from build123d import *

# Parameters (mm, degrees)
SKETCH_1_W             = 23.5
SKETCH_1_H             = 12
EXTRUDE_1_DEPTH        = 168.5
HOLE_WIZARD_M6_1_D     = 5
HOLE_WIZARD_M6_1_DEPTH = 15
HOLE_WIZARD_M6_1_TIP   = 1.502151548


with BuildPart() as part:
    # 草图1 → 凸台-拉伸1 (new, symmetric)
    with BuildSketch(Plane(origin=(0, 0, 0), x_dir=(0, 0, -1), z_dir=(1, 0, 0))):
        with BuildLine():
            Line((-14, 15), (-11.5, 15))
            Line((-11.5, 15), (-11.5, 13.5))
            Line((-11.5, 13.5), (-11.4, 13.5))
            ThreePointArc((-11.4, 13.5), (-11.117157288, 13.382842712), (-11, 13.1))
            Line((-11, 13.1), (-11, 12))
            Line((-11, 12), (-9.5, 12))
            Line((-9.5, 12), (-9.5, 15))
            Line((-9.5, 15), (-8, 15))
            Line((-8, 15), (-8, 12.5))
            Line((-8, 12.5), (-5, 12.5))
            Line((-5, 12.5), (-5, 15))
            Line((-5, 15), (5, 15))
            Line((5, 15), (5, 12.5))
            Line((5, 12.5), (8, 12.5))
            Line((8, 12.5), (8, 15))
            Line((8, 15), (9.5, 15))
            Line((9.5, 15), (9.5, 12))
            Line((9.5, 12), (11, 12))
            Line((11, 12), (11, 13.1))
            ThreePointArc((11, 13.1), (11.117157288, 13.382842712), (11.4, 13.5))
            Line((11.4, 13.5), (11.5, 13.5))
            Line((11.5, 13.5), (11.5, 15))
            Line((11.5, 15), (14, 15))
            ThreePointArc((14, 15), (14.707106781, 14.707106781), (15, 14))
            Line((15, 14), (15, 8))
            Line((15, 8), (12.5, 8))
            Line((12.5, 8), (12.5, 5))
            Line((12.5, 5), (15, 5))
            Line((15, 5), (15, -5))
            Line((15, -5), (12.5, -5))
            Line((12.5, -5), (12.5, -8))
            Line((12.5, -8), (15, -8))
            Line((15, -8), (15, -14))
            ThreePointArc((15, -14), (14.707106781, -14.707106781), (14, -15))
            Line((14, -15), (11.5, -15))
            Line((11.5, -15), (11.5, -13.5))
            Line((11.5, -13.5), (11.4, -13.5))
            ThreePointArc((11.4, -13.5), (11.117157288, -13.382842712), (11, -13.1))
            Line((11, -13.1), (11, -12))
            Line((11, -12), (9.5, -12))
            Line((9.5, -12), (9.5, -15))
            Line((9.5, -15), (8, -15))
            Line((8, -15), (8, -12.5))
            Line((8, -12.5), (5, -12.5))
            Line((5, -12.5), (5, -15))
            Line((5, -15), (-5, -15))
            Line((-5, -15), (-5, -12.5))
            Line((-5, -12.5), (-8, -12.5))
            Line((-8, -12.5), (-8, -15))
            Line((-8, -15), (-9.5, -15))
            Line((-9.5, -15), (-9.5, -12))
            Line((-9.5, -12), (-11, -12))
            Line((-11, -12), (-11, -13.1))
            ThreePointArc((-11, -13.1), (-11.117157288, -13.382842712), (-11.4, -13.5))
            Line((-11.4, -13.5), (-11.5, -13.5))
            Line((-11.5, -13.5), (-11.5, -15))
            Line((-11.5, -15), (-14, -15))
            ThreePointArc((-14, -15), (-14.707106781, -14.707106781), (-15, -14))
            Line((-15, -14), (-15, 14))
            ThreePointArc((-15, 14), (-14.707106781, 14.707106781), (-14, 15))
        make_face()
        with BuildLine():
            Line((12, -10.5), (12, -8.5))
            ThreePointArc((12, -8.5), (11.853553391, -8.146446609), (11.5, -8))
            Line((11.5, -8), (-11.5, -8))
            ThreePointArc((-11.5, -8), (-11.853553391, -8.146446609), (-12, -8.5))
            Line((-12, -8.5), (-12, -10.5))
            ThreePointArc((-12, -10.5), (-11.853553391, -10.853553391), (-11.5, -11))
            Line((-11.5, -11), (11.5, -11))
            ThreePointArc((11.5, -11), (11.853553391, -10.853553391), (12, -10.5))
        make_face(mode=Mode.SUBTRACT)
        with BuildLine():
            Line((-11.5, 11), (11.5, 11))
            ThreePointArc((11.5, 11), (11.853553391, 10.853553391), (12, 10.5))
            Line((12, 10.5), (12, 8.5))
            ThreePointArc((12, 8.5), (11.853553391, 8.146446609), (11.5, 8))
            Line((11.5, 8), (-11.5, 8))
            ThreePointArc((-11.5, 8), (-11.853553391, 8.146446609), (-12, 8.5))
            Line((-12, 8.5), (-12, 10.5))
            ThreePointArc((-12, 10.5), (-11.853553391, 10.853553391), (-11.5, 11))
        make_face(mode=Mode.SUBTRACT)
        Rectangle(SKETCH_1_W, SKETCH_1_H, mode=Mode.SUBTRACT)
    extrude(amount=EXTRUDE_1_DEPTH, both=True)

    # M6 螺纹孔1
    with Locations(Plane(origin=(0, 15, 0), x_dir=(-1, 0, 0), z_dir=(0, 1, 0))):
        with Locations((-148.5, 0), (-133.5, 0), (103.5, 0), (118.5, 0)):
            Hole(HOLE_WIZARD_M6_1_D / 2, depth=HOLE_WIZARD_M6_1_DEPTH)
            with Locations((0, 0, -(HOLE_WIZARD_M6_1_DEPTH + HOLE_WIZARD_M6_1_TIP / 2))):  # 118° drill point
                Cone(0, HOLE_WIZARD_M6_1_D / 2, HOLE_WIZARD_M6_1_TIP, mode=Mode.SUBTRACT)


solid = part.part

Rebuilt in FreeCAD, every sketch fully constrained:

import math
import FreeCAD as App
import Part
import Sketcher
from FreeCAD import Vector
Q = App.Units.Quantity

doc = App.newDocument("Part")
body = doc.addObject("PartDesign::Body", "Body")

sketch1 = body.newObject("Sketcher::SketchObject", "Sketch")
sketch1.AttachmentSupport = (doc.getObject("YZ_Plane"), [""])
sketch1.MapMode = "FlatFace"
sketch1.addGeometry([
    Part.LineSegment(Vector(15, 11.5, 0), Vector(15, 14, 0)),
    Part.ArcOfCircle(Part.Circle(Vector(14, 14, 0), Vector(0, 0, 1), 1), math.radians(0), math.radians(90)),
    Part.LineSegment(Vector(14, 15, 0), Vector(-14, 15, 0)),
    Part.ArcOfCircle(Part.Circle(Vector(-14, 14, 0), Vector(0, 0, 1), 1), math.radians(90), math.radians(180)),
    Part.LineSegment(Vector(-15, 14, 0), Vector(-15, 11.5, 0)),
    Part.LineSegment(Vector(-15, 11.5, 0), Vector(-13.5, 11.5, 0)),
    Part.LineSegment(Vector(-13.5, 11.5, 0), Vector(-13.5, 11.4, 0)),
    Part.ArcOfCircle(Part.Circle(Vector(-13.1, 11.4, 0), Vector(0, 0, 1), 0.4), math.radians(-180), math.radians(-90)),
    Part.LineSegment(Vector(-13.1, 11, 0), Vector(-12, 11, 0)),
    Part.LineSegment(Vector(-12, 11, 0), Vector(-12, 9.5, 0)),
    Part.LineSegment(Vector(-12, 9.5, 0), Vector(-15, 9.5, 0)),
    Part.LineSegment(Vector(-15, 9.5, 0), Vector(-15, 8, 0)),
    Part.LineSegment(Vector(-15, 8, 0), Vector(-12.5, 8, 0)),
    Part.LineSegment(Vector(-12.5, 8, 0), Vector(-12.5, 5, 0)),
    Part.LineSegment(Vector(-12.5, 5, 0), Vector(-15, 5, 0)),
    Part.LineSegment(Vector(-15, 5, 0), Vector(-15, -5, 0)),
    Part.LineSegment(Vector(-15, -5, 0), Vector(-12.5, -5, 0)),
    Part.LineSegment(Vector(-12.5, -5, 0), Vector(-12.5, -8, 0)),
    Part.LineSegment(Vector(-12.5, -8, 0), Vector(-15, -8, 0)),
    Part.LineSegment(Vector(-15, -8, 0), Vector(-15, -9.5, 0)),
    Part.LineSegment(Vector(-15, -9.5, 0), Vector(-12, -9.5, 0)),
    Part.LineSegment(Vector(-12, -9.5, 0), Vector(-12, -11, 0)),
    Part.LineSegment(Vector(-12, -11, 0), Vector(-13.1, -11, 0)),
    Part.ArcOfCircle(Part.Circle(Vector(-13.1, -11.4, 0), Vector(0, 0, 1), 0.4), math.radians(90), math.radians(180)),
    Part.LineSegment(Vector(-13.5, -11.4, 0), Vector(-13.5, -11.5, 0)),
    Part.LineSegment(Vector(-13.5, -11.5, 0), Vector(-15, -11.5, 0)),
    Part.LineSegment(Vector(-15, -11.5, 0), Vector(-15, -14, 0)),
    Part.ArcOfCircle(Part.Circle(Vector(-14, -14, 0), Vector(0, 0, 1), 1), math.radians(-180), math.radians(-90)),
    Part.LineSegment(Vector(-14, -15, 0), Vector(-8, -15, 0)),
    Part.LineSegment(Vector(-8, -15, 0), Vector(-8, -12.5, 0)),
    Part.LineSegment(Vector(-8, -12.5, 0), Vector(-5, -12.5, 0)),
    Part.LineSegment(Vector(-5, -12.5, 0), Vector(-5, -15, 0)),
    Part.LineSegment(Vector(-5, -15, 0), Vector(5, -15, 0)),
    Part.LineSegment(Vector(5, -15, 0), Vector(5, -12.5, 0)),
    Part.LineSegment(Vector(5, -12.5, 0), Vector(8, -12.5, 0)),
    Part.LineSegment(Vector(8, -12.5, 0), Vector(8, -15, 0)),
    Part.LineSegment(Vector(8, -15, 0), Vector(14, -15, 0)),
    Part.ArcOfCircle(Part.Circle(Vector(14, -14, 0), Vector(0, 0, 1), 1), math.radians(-90), math.radians(0)),
    Part.LineSegment(Vector(15, -14, 0), Vector(15, -11.5, 0)),
    Part.LineSegment(Vector(15, -11.5, 0), Vector(13.5, -11.5, 0)),
    Part.LineSegment(Vector(13.5, -11.5, 0), Vector(13.5, -11.4, 0)),
    Part.ArcOfCircle(Part.Circle(Vector(13.1, -11.4, 0), Vector(0, 0, 1), 0.4), math.radians(0), math.radians(90)),
    Part.LineSegment(Vector(13.1, -11, 0), Vector(12, -11, 0)),
    Part.LineSegment(Vector(12, -11, 0), Vector(12, -9.5, 0)),
    Part.LineSegment(Vector(12, -9.5, 0), Vector(15, -9.5, 0)),
    Part.LineSegment(Vector(15, -9.5, 0), Vector(15, -8, 0)),
    Part.LineSegment(Vector(15, -8, 0), Vector(12.5, -8, 0)),
    Part.LineSegment(Vector(12.5, -8, 0), Vector(12.5, -5, 0)),
    Part.LineSegment(Vector(12.5, -5, 0), Vector(15, -5, 0)),
    Part.LineSegment(Vector(15, -5, 0), Vector(15, 5, 0)),
    Part.LineSegment(Vector(15, 5, 0), Vector(12.5, 5, 0)),
    Part.LineSegment(Vector(12.5, 5, 0), Vector(12.5, 8, 0)),
    Part.LineSegment(Vector(12.5, 8, 0), Vector(15, 8, 0)),
    Part.LineSegment(Vector(15, 8, 0), Vector(15, 9.5, 0)),
    Part.LineSegment(Vector(15, 9.5, 0), Vector(12, 9.5, 0)),
    Part.LineSegment(Vector(12, 9.5, 0), Vector(12, 11, 0)),
    Part.LineSegment(Vector(12, 11, 0), Vector(13.1, 11, 0)),
    Part.ArcOfCircle(Part.Circle(Vector(13.1, 11.4, 0), Vector(0, 0, 1), 0.4), math.radians(-90), math.radians(0)),
    Part.LineSegment(Vector(13.5, 11.4, 0), Vector(13.5, 11.5, 0)),
    Part.LineSegment(Vector(13.5, 11.5, 0), Vector(15, 11.5, 0)),
    Part.ArcOfCircle(Part.Circle(Vector(-10.5, -11.5, 0), Vector(0, 0, 1), 0.5), math.radians(180), math.radians(270)),
    Part.LineSegment(Vector(-11, -11.5, 0), Vector(-11, 11.5, 0)),
    Part.ArcOfCircle(Part.Circle(Vector(-10.5, 11.5, 0), Vector(0, 0, 1), 0.5), math.radians(90), math.radians(180)),
    Part.LineSegment(Vector(-10.5, 12, 0), Vector(-8.5, 12, 0)),
    Part.ArcOfCircle(Part.Circle(Vector(-8.5, 11.5, 0), Vector(0, 0, 1), 0.5), math.radians(0), math.radians(90)),
    Part.LineSegment(Vector(-8, 11.5, 0), Vector(-8, -11.5, 0)),
    Part.ArcOfCircle(Part.Circle(Vector(-8.5, -11.5, 0), Vector(0, 0, 1), 0.5), math.radians(-90), math.radians(0)),
    Part.LineSegment(Vector(-8.5, -12, 0), Vector(-10.5, -12, 0)),
    Part.LineSegment(Vector(-6, 11.75, 0), Vector(6, 11.75, 0)),
    Part.LineSegment(Vector(6, 11.75, 0), Vector(6, -11.75, 0)),
    Part.LineSegment(Vector(6, -11.75, 0), Vector(-6, -11.75, 0)),
    Part.LineSegment(Vector(-6, -11.75, 0), Vector(-6, 11.75, 0)),
    Part.LineSegment(Vector(11, 11.5, 0), Vector(11, -11.5, 0)),
    Part.ArcOfCircle(Part.Circle(Vector(10.5, -11.5, 0), Vector(0, 0, 1), 0.5), math.radians(-90), math.radians(0)),
    Part.LineSegment(Vector(10.5, -12, 0), Vector(8.5, -12, 0)),
    Part.ArcOfCircle(Part.Circle(Vector(8.5, -11.5, 0), Vector(0, 0, 1), 0.5), math.radians(180), math.radians(270)),
    Part.LineSegment(Vector(8, -11.5, 0), Vector(8, 11.5, 0)),
    Part.ArcOfCircle(Part.Circle(Vector(8.5, 11.5, 0), Vector(0, 0, 1), 0.5), math.radians(90), math.radians(180)),
    Part.LineSegment(Vector(8.5, 12, 0), Vector(10.5, 12, 0)),
    Part.ArcOfCircle(Part.Circle(Vector(10.5, 11.5, 0), Vector(0, 0, 1), 0.5), math.radians(0), math.radians(90)),
], False)
sketch1.addConstraint([
    Sketcher.Constraint("Tangent", 0, 2, 1, 1),
    Sketcher.Constraint("Tangent", 1, 2, 2, 1),
    Sketcher.Constraint("Tangent", 2, 2, 3, 1),
    Sketcher.Constraint("Tangent", 3, 2, 4, 1),
    Sketcher.Constraint("Coincident", 4, 2, 5, 1),
    Sketcher.Constraint("Coincident", 5, 2, 6, 1),
    Sketcher.Constraint("Tangent", 6, 2, 7, 1),
    Sketcher.Constraint("Tangent", 7, 2, 8, 1),
    Sketcher.Constraint("Coincident", 8, 2, 9, 1),
    Sketcher.Constraint("Coincident", 9, 2, 10, 1),
    Sketcher.Constraint("Coincident", 10, 2, 11, 1),
    Sketcher.Constraint("Coincident", 11, 2, 12, 1),
    Sketcher.Constraint("Coincident", 12, 2, 13, 1),
    Sketcher.Constraint("Coincident", 13, 2, 14, 1),
    Sketcher.Constraint("Coincident", 14, 2, 15, 1),
    Sketcher.Constraint("Coincident", 15, 2, 16, 1),
    Sketcher.Constraint("Coincident", 16, 2, 17, 1),
    Sketcher.Constraint("Coincident", 17, 2, 18, 1),
    Sketcher.Constraint("Coincident", 18, 2, 19, 1),
    Sketcher.Constraint("Coincident", 19, 2, 20, 1),
    Sketcher.Constraint("Coincident", 20, 2, 21, 1),
    Sketcher.Constraint("Coincident", 21, 2, 22, 1),
    Sketcher.Constraint("Tangent", 22, 2, 23, 1),
    Sketcher.Constraint("Tangent", 23, 2, 24, 1),
    Sketcher.Constraint("Coincident", 24, 2, 25, 1),
    Sketcher.Constraint("Coincident", 25, 2, 26, 1),
    Sketcher.Constraint("Tangent", 26, 2, 27, 1),
    Sketcher.Constraint("Tangent", 27, 2, 28, 1),
    Sketcher.Constraint("Coincident", 28, 2, 29, 1),
    Sketcher.Constraint("Coincident", 29, 2, 30, 1),
    Sketcher.Constraint("Coincident", 30, 2, 31, 1),
    Sketcher.Constraint("Coincident", 31, 2, 32, 1),
    Sketcher.Constraint("Coincident", 32, 2, 33, 1),
    Sketcher.Constraint("Coincident", 33, 2, 34, 1),
    Sketcher.Constraint("Coincident", 34, 2, 35, 1),
    Sketcher.Constraint("Coincident", 35, 2, 36, 1),
    Sketcher.Constraint("Tangent", 36, 2, 37, 1),
    Sketcher.Constraint("Tangent", 37, 2, 38, 1),
    Sketcher.Constraint("Coincident", 38, 2, 39, 1),
    Sketcher.Constraint("Coincident", 39, 2, 40, 1),
    Sketcher.Constraint("Tangent", 40, 2, 41, 1),
    Sketcher.Constraint("Tangent", 41, 2, 42, 1),
    Sketcher.Constraint("Coincident", 42, 2, 43, 1),
    Sketcher.Constraint("Coincident", 43, 2, 44, 1),
    Sketcher.Constraint("Coincident", 44, 2, 45, 1),
    Sketcher.Constraint("Coincident", 45, 2, 46, 1),
    Sketcher.Constraint("Coincident", 46, 2, 47, 1),
    Sketcher.Constraint("Coincident", 47, 2, 48, 1),
    Sketcher.Constraint("Coincident", 48, 2, 49, 1),
    Sketcher.Constraint("Coincident", 49, 2, 50, 1),
    Sketcher.Constraint("Coincident", 50, 2, 51, 1),
    Sketcher.Constraint("Coincident", 51, 2, 52, 1),
    Sketcher.Constraint("Coincident", 52, 2, 53, 1),
    Sketcher.Constraint("Coincident", 53, 2, 54, 1),
    Sketcher.Constraint("Coincident", 54, 2, 55, 1),
    Sketcher.Constraint("Coincident", 55, 2, 56, 1),
    Sketcher.Constraint("Tangent", 56, 2, 57, 1),
    Sketcher.Constraint("Tangent", 57, 2, 58, 1),
    Sketcher.Constraint("Coincident", 58, 2, 59, 1),
    Sketcher.Constraint("Coincident", 59, 2, 0, 1),
    Sketcher.Constraint("Tangent", 60, 1, 61, 1),
    Sketcher.Constraint("Tangent", 61, 2, 62, 2),
    Sketcher.Constraint("Tangent", 62, 1, 63, 1),
    Sketcher.Constraint("Tangent", 63, 2, 64, 2),
    Sketcher.Constraint("Tangent", 64, 1, 65, 1),
    Sketcher.Constraint("Tangent", 65, 2, 66, 2),
    Sketcher.Constraint("Tangent", 66, 1, 67, 1),
    Sketcher.Constraint("Tangent", 67, 2, 60, 2),
    Sketcher.Constraint("Coincident", 68, 2, 69, 1),
    Sketcher.Constraint("Coincident", 69, 2, 70, 1),
    Sketcher.Constraint("Coincident", 70, 2, 71, 1),
    Sketcher.Constraint("Coincident", 71, 2, 68, 1),
    Sketcher.Constraint("Tangent", 72, 2, 73, 2),
    Sketcher.Constraint("Tangent", 73, 1, 74, 1),
    Sketcher.Constraint("Tangent", 74, 2, 75, 2),
    Sketcher.Constraint("Tangent", 75, 1, 76, 1),
    Sketcher.Constraint("Tangent", 76, 2, 77, 2),
    Sketcher.Constraint("Tangent", 77, 1, 78, 1),
    Sketcher.Constraint("Tangent", 78, 2, 79, 2),
    Sketcher.Constraint("Tangent", 79, 1, 72, 1),
    Sketcher.Constraint("Vertical", 0),
    Sketcher.Constraint("Horizontal", 2),
    Sketcher.Constraint("Vertical", 4),
    Sketcher.Constraint("Horizontal", 5),
    Sketcher.Constraint("Vertical", 6),
    Sketcher.Constraint("Horizontal", 8),
    Sketcher.Constraint("Vertical", 9),
    Sketcher.Constraint("Horizontal", 10),
    Sketcher.Constraint("Vertical", 11),
    Sketcher.Constraint("Horizontal", 12),
    Sketcher.Constraint("Vertical", 13),
    Sketcher.Constraint("Horizontal", 14),
    Sketcher.Constraint("Vertical", 15),
    Sketcher.Constraint("Horizontal", 16),
    Sketcher.Constraint("Vertical", 17),
    Sketcher.Constraint("Horizontal", 18),
    Sketcher.Constraint("Vertical", 19),
    Sketcher.Constraint("Horizontal", 20),
    Sketcher.Constraint("Vertical", 21),
    Sketcher.Constraint("Horizontal", 22),
    Sketcher.Constraint("Vertical", 24),
    Sketcher.Constraint("Horizontal", 25),
    Sketcher.Constraint("Vertical", 26),
    Sketcher.Constraint("Horizontal", 28),
    Sketcher.Constraint("Vertical", 29),
    Sketcher.Constraint("Horizontal", 30),
    Sketcher.Constraint("Vertical", 31),
    Sketcher.Constraint("Horizontal", 32),
    Sketcher.Constraint("Vertical", 33),
    Sketcher.Constraint("Horizontal", 34),
    Sketcher.Constraint("Vertical", 35),
    Sketcher.Constraint("Horizontal", 36),
    Sketcher.Constraint("Vertical", 38),
    Sketcher.Constraint("Horizontal", 39),
    Sketcher.Constraint("Vertical", 40),
    Sketcher.Constraint("Horizontal", 42),
    Sketcher.Constraint("Vertical", 43),
    Sketcher.Constraint("Horizontal", 44),
    Sketcher.Constraint("Vertical", 45),
    Sketcher.Constraint("Horizontal", 46),
    Sketcher.Constraint("Vertical", 47),
    Sketcher.Constraint("Horizontal", 48),
    Sketcher.Constraint("Vertical", 49),
    Sketcher.Constraint("Horizontal", 50),
    Sketcher.Constraint("Vertical", 51),
    Sketcher.Constraint("Horizontal", 52),
    Sketcher.Constraint("Vertical", 53),
    Sketcher.Constraint("Horizontal", 54),
    Sketcher.Constraint("Vertical", 55),
    Sketcher.Constraint("Horizontal", 56),
    Sketcher.Constraint("Vertical", 58),
    Sketcher.Constraint("Horizontal", 59),
    Sketcher.Constraint("Vertical", 61),
    Sketcher.Constraint("Horizontal", 63),
    Sketcher.Constraint("Vertical", 65),
    Sketcher.Constraint("Horizontal", 67),
    Sketcher.Constraint("Horizontal", 68),
    Sketcher.Constraint("Vertical", 69),
    Sketcher.Constraint("Horizontal", 70),
    Sketcher.Constraint("Vertical", 71),
    Sketcher.Constraint("Vertical", 72),
    Sketcher.Constraint("Horizontal", 74),
    Sketcher.Constraint("Vertical", 76),
    Sketcher.Constraint("Horizontal", 78),
    Sketcher.Constraint("Equal", 1, 3),
    Sketcher.Constraint("Equal", 7, 23),
    Sketcher.Constraint("Equal", 3, 27),
    Sketcher.Constraint("Equal", 27, 37),
    Sketcher.Constraint("Equal", 23, 41),
    Sketcher.Constraint("Equal", 41, 57),
    Sketcher.Constraint("Equal", 60, 62),
    Sketcher.Constraint("Equal", 62, 64),
    Sketcher.Constraint("Equal", 64, 66),
    Sketcher.Constraint("Equal", 66, 73),
    Sketcher.Constraint("Equal", 73, 75),
    Sketcher.Constraint("Equal", 75, 77),
    Sketcher.Constraint("Equal", 77, 79),
    Sketcher.Constraint("Symmetric", 1, 3, 27, 3, -1, 1),
    Sketcher.Constraint("Symmetric", 3, 3, 37, 3, -1, 1),
    Sketcher.Constraint("Symmetric", 7, 3, 41, 3, -1, 1),
    Sketcher.Constraint("Symmetric", 23, 3, 57, 3, -1, 1),
    Sketcher.Constraint("Symmetric", 62, 3, 73, 3, -1, 1),
    Sketcher.Constraint("Symmetric", 66, 3, 77, 3, -1, 1),
    Sketcher.Constraint("Symmetric", 9, 2, 43, 2, -1, 1),
    Sketcher.Constraint("Symmetric", 11, 2, 45, 2, -1, 1),
    Sketcher.Constraint("Symmetric", 13, 2, 47, 2, -1, 1),
    Sketcher.Constraint("Symmetric", 15, 2, 49, 2, -1, 1),
    Sketcher.Constraint("Symmetric", 17, 2, 51, 2, -1, 1),
    Sketcher.Constraint("Symmetric", 19, 2, 53, 2, -1, 1),
    Sketcher.Constraint("Symmetric", 68, 2, 70, 2, -1, 1),
    Sketcher.Constraint("Symmetric", 23, 3, 41, 3, -2),
    Sketcher.Constraint("Symmetric", 30, 2, 33, 2, -2),
    Sketcher.Constraint("Symmetric", 25, 2, 38, 2, -2),
    Sketcher.Constraint("Symmetric", 20, 2, 43, 2, -2),
    Sketcher.Constraint("Symmetric", 18, 2, 45, 2, -2),
    Sketcher.Constraint("Symmetric", 16, 2, 47, 2, -2),
    Sketcher.Constraint("Horizontal", 66, 3, 73, 3),
    Sketcher.Constraint("Horizontal", 79, 3, 4, 2),
    Sketcher.Constraint("Horizontal", 75, 3, 24, 2),
    Sketcher.Constraint("Horizontal", 28, 2, 31, 2),
    Sketcher.Constraint("Horizontal", 5, 2, 58, 2),
    Sketcher.Constraint("Vertical", 4, 2, 10, 2),
    Sketcher.Constraint("Vertical", 11, 2, 14, 2),
    Sketcher.Constraint("Vertical", 43, 2, 54, 2),
    Sketcher.Constraint("Vertical", 29, 2, 64, 1),
    Sketcher.Constraint("Vertical", 35, 2, 75, 1),
    Sketcher.Constraint("Equal", 20, 30),
    Sketcher.Constraint("Equal", 52, 0),
    Sketcher.Constraint("Equal", 59, 9),
    Sketcher.Constraint("Equal", 9, 11),
    Sketcher.Constraint("Equal", 54, 13),
    Sketcher.Constraint("Equal", 32, 15),
    Sketcher.Constraint("Equal", 26, 29),
    Sketcher.Constraint("Radius", 1, Q("1 mm")),
    Sketcher.Constraint("Radius", 7, Q("0.4 mm")),
    Sketcher.Constraint("Radius", 60, Q("0.5 mm")),
    Sketcher.Constraint("DistanceX", 2, 2, 2, 1, Q("28 mm")),
    Sketcher.Constraint("DistanceX", 10, 2, 10, 1, Q("3 mm")),
    Sketcher.Constraint("DistanceX", 28, 1, 28, 2, Q("6 mm")),
    Sketcher.Constraint("DistanceX", 63, 1, 63, 2, Q("2 mm")),
    Sketcher.Constraint("DistanceX", 68, 1, 68, 2, Q("12 mm")),
    Sketcher.Constraint("DistanceY", 61, 1, 61, 2, Q("23 mm")),
    Sketcher.Constraint("DistanceX", 5, 1, 5, 2, Q("1.5 mm")),
    Sketcher.Constraint("DistanceX", 12, 1, 12, 2, Q("2.5 mm")),
    Sketcher.Constraint("DistanceY", 69, 2, 69, 1, Q("23.5 mm")),
])
pad1 = body.newObject("PartDesign::Pad", "Pad")
pad1.Profile = sketch1
pad1.Length = 337
pad1.Midplane = True

sketch2 = body.newObject("Sketcher::SketchObject", "Sketch001")
sketch2.AttachmentSupport = (doc.getObject("XZ_Plane"), [""])
sketch2.MapMode = "FlatFace"
sketch2.AttachmentOffset = App.Placement(Vector(0, 0, -15), App.Rotation())
sketch2.addGeometry([
    Part.Circle(Vector(148.5, 0, 0), Vector(0, 0, 1), 2.5),
    Part.Circle(Vector(133.5, 0, 0), Vector(0, 0, 1), 2.5),
    Part.Circle(Vector(-103.5, 0, 0), Vector(0, 0, 1), 2.5),
    Part.Circle(Vector(-118.5, 0, 0), Vector(0, 0, 1), 2.5),
], False)
sketch2.addConstraint([
    Sketcher.Constraint("Equal", 0, 1),
    Sketcher.Constraint("Equal", 1, 2),
    Sketcher.Constraint("Equal", 2, 3),
    Sketcher.Constraint("PointOnObject", 0, 3, -1),
    Sketcher.Constraint("PointOnObject", 1, 3, -1),
    Sketcher.Constraint("PointOnObject", 2, 3, -1),
    Sketcher.Constraint("PointOnObject", 3, 3, -1),
    Sketcher.Constraint("Diameter", 0, Q("5 mm")),
    Sketcher.Constraint("DistanceX", 1, 3, 0, 3, Q("15 mm")),
    Sketcher.Constraint("DistanceX", 2, 3, 1, 3, Q("237 mm")),
    Sketcher.Constraint("DistanceX", 3, 3, 2, 3, Q("15 mm")),
    Sketcher.Constraint("DistanceX", -1, 1, 0, 3, Q("148.5 mm")),
])
doc.recompute()
hole = body.newObject("PartDesign::Hole", "Hole")
hole.Profile = sketch2
hole.ThreadType = "None"
hole.Diameter = 5
hole.DepthType = "Dimension"
hole.Depth = 15
hole.DrillPoint = "Angled"
hole.DrillPointAngle = 118
hole.Reversed = True

doc.recompute()
